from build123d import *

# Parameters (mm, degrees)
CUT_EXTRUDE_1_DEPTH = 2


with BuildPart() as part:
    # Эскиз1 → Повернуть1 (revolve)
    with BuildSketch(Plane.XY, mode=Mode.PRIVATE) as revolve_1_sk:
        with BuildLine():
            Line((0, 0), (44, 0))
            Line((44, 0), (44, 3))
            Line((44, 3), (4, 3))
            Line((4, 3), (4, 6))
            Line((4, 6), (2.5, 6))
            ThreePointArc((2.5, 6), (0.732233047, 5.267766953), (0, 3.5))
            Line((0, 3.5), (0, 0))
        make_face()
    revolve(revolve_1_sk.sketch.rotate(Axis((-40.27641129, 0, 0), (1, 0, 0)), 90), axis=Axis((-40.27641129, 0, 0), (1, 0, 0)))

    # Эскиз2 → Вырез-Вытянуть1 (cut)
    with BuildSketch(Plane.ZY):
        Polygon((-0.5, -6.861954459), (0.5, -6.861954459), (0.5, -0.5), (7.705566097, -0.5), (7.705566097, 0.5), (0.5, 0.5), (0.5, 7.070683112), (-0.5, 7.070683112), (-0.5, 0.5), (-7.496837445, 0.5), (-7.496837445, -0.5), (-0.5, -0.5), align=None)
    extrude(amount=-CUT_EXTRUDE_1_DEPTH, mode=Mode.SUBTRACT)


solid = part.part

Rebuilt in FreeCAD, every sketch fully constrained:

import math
import FreeCAD as App
import Part
import Sketcher
Q = App.Units.Quantity

doc = App.newDocument("Part")
body = doc.addObject("PartDesign::Body", "Body")

# Sketch on XY plane
sketch1 = doc.addObject("Sketcher::SketchObject", "Sketch")
body.addObject(sketch1)
sketch1.AttachmentSupport = (doc.XY_Plane, [""])
sketch1.MapMode = "FlatFace"
sketch1.addGeometry(Part.LineSegment(App.Vector(0, 0, 0), App.Vector(44, 0, 0)), False)
sketch1.addGeometry(Part.LineSegment(App.Vector(44, 0, 0), App.Vector(44, 3, 0)), False)
sketch1.addGeometry(Part.LineSegment(App.Vector(44, 3, 0), App.Vector(4, 3, 0)), False)
sketch1.addGeometry(Part.LineSegment(App.Vector(4, 3, 0), App.Vector(4, 6, 0)), False)
sketch1.addGeometry(Part.LineSegment(App.Vector(4, 6, 0), App.Vector(2.5, 6, 0)), False)
sketch1.addGeometry(Part.ArcOfCircle(Part.Circle(App.Vector(2.5, 3.5, 0), App.Vector(0, 0, 1), 2.5), math.radians(90), math.radians(180)), False)
sketch1.addGeometry(Part.LineSegment(App.Vector(0, 3.5, 0), App.Vector(0, 0, 0)), False)
sketch1.addConstraint(Sketcher.Constraint("Coincident", 0, 2, 1, 1))
sketch1.addConstraint(Sketcher.Constraint("Coincident", 1, 2, 2, 1))
sketch1.addConstraint(Sketcher.Constraint("Coincident", 2, 2, 3, 1))
sketch1.addConstraint(Sketcher.Constraint("Coincident", 3, 2, 4, 1))
sketch1.addConstraint(Sketcher.Constraint("Tangent", 4, 2, 5, 1))
sketch1.addConstraint(Sketcher.Constraint("Tangent", 5, 2, 6, 1))
sketch1.addConstraint(Sketcher.Constraint("Coincident", 6, 2, 0, 1))
sketch1.addConstraint(Sketcher.Constraint("Horizontal", 0))
sketch1.addConstraint(Sketcher.Constraint("Vertical", 1))
sketch1.addConstraint(Sketcher.Constraint("Horizontal", 2))
sketch1.addConstraint(Sketcher.Constraint("Vertical", 3))
sketch1.addConstraint(Sketcher.Constraint("Horizontal", 4))
sketch1.addConstraint(Sketcher.Constraint("Vertical", 6))
sketch1.addConstraint(Sketcher.Constraint("Coincident", 6, 2, -1, 1))
sketch1.addConstraint(Sketcher.Constraint("Equal", 1, 3))
sketch1.addConstraint(Sketcher.Constraint("Radius", 5, Q("2.5 mm")))
sketch1.addConstraint(Sketcher.Constraint("DistanceX", 0, 1, 0, 2, Q("44 mm")))
sketch1.addConstraint(Sketcher.Constraint("DistanceX", 2, 2, 2, 1, Q("40 mm")))
sketch1.addConstraint(Sketcher.Constraint("DistanceY", 1, 1, 1, 2, Q("3 mm")))
revolution = doc.addObject("PartDesign::Revolution", "Revolution")
body.addObject(revolution)
revolution.Profile = sketch1
revolution.ReferenceAxis = (sketch1, ["H_Axis"])
revolution.Angle = 360

# Sketch on YZ plane
sketch2 = doc.addObject("Sketcher::SketchObject", "Sketch001")
body.addObject(sketch2)
sketch2.AttachmentSupport = (doc.YZ_Plane, [""])
sketch2.MapMode = "FlatFace"
sketch2.addGeometry(Part.LineSegment(App.Vector(-6.9, -0.5, 0), App.Vector(-6.9, 0.5, 0)), False)
sketch2.addGeometry(Part.LineSegment(App.Vector(-6.9, 0.5, 0), App.Vector(-0.5, 0.5, 0)), False)
sketch2.addGeometry(Part.LineSegment(App.Vector(-0.5, 0.5, 0), App.Vector(-0.5, 7.7, 0)), False)
sketch2.addGeometry(Part.LineSegment(App.Vector(-0.5, 7.7, 0), App.Vector(0.5, 7.7, 0)), False)
sketch2.addGeometry(Part.LineSegment(App.Vector(0.5, 7.7, 0), App.Vector(0.5, 0.5, 0)), False)
sketch2.addGeometry(Part.LineSegment(App.Vector(0.5, 0.5, 0), App.Vector(7.1, 0.5, 0)), False)
sketch2.addGeometry(Part.LineSegment(App.Vector(7.1, 0.5, 0), App.Vector(7.1, -0.5, 0)), False)
sketch2.addGeometry(Part.LineSegment(App.Vector(7.1, -0.5, 0), App.Vector(0.5, -0.5, 0)), False)
sketch2.addGeometry(Part.LineSegment(App.Vector(0.5, -0.5, 0), App.Vector(0.5, -7.5, 0)), False)
sketch2.addGeometry(Part.LineSegment(App.Vector(0.5, -7.5, 0), App.Vector(-0.5, -7.5, 0)), False)
sketch2.addGeometry(Part.LineSegment(App.Vector(-0.5, -7.5, 0), App.Vector(-0.5, -0.5, 0)), False)
sketch2.addGeometry(Part.LineSegment(App.Vector(-0.5, -0.5, 0), App.Vector(-6.9, -0.5, 0)), False)
sketch2.addConstraint(Sketcher.Constraint("Coincident", 0, 2, 1, 1))
sketch2.addConstraint(Sketcher.Constraint("Coincident", 1, 2, 2, 1))
sketch2.addConstraint(Sketcher.Constraint("Coincident", 2, 2, 3, 1))
sketch2.addConstraint(Sketcher.Constraint("Coincident", 3, 2, 4, 1))
sketch2.addConstraint(Sketcher.Constraint("Coincident", 4, 2, 5, 1))
sketch2.addConstraint(Sketcher.Constraint("Coincident", 5, 2, 6, 1))
sketch2.addConstraint(Sketcher.Constraint("Coincident", 6, 2, 7, 1))
sketch2.addConstraint(Sketcher.Constraint("Coincident", 7, 2, 8, 1))
sketch2.addConstraint(Sketcher.Constraint("Coincident", 8, 2, 9, 1))
sketch2.addConstraint(Sketcher.Constraint("Coincident", 9, 2, 10, 1))
sketch2.addConstraint(Sketcher.Constraint("Coincident", 10, 2, 11, 1))
sketch2.addConstraint(Sketcher.Constraint("Coincident", 11, 2, 0, 1))
sketch2.addConstraint(Sketcher.Constraint("Vertical", 0))
sketch2.addConstraint(Sketcher.Constraint("Horizontal", 1))
sketch2.addConstraint(Sketcher.Constraint("Vertical", 2))
sketch2.addConstraint(Sketcher.Constraint("Horizontal", 3))
sketch2.addConstraint(Sketcher.Constraint("Vertical", 4))
sketch2.addConstraint(Sketcher.Constraint("Horizontal", 5))
sketch2.addConstraint(Sketcher.Constraint("Vertical", 6))
sketch2.addConstraint(Sketcher.Constraint("Horizontal", 7))
sketch2.addConstraint(Sketcher.Constraint("Vertical", 8))
sketch2.addConstraint(Sketcher.Constraint("Horizontal", 9))
sketch2.addConstraint(Sketcher.Constraint("Vertical", 10))
sketch2.addConstraint(Sketcher.Constraint("Horizontal", 11))
sketch2.addConstraint(Sketcher.Constraint("Symmetric", 1, 2, 7, 2, -1, 1))
sketch2.addConstraint(Sketcher.Constraint("Symmetric", 4, 2, 10, 2, -1, 1))
sketch2.addConstraint(Sketcher.Constraint("Symmetric", 1, 2, 4, 2, -2))
sketch2.addConstraint(Sketcher.Constraint("Equal", 9, 0))
sketch2.addConstraint(Sketcher.Constraint("DistanceX", 3, 1, 3, 2, Q("1 mm")))
sketch2.addConstraint(Sketcher.Constraint("DistanceX", 1, 1, 1, 2, Q("6.361954 mm")))
sketch2.addConstraint(Sketcher.Constraint("DistanceX", 5, 1, 5, 2, Q("6.570683 mm")))
sketch2.addConstraint(Sketcher.Constraint("DistanceY", 2, 1, 2, 2, Q("7.205566 mm")))
sketch2.addConstraint(Sketcher.Constraint("DistanceY", 8, 2, 8, 1, Q("6.996837 mm")))
pocket1 = doc.addObject("PartDesign::Pocket", "Pocket")
body.addObject(pocket1)
pocket1.Profile = sketch2
pocket1.Length = 2
pocket1.Reversed = True

doc.recompute()
